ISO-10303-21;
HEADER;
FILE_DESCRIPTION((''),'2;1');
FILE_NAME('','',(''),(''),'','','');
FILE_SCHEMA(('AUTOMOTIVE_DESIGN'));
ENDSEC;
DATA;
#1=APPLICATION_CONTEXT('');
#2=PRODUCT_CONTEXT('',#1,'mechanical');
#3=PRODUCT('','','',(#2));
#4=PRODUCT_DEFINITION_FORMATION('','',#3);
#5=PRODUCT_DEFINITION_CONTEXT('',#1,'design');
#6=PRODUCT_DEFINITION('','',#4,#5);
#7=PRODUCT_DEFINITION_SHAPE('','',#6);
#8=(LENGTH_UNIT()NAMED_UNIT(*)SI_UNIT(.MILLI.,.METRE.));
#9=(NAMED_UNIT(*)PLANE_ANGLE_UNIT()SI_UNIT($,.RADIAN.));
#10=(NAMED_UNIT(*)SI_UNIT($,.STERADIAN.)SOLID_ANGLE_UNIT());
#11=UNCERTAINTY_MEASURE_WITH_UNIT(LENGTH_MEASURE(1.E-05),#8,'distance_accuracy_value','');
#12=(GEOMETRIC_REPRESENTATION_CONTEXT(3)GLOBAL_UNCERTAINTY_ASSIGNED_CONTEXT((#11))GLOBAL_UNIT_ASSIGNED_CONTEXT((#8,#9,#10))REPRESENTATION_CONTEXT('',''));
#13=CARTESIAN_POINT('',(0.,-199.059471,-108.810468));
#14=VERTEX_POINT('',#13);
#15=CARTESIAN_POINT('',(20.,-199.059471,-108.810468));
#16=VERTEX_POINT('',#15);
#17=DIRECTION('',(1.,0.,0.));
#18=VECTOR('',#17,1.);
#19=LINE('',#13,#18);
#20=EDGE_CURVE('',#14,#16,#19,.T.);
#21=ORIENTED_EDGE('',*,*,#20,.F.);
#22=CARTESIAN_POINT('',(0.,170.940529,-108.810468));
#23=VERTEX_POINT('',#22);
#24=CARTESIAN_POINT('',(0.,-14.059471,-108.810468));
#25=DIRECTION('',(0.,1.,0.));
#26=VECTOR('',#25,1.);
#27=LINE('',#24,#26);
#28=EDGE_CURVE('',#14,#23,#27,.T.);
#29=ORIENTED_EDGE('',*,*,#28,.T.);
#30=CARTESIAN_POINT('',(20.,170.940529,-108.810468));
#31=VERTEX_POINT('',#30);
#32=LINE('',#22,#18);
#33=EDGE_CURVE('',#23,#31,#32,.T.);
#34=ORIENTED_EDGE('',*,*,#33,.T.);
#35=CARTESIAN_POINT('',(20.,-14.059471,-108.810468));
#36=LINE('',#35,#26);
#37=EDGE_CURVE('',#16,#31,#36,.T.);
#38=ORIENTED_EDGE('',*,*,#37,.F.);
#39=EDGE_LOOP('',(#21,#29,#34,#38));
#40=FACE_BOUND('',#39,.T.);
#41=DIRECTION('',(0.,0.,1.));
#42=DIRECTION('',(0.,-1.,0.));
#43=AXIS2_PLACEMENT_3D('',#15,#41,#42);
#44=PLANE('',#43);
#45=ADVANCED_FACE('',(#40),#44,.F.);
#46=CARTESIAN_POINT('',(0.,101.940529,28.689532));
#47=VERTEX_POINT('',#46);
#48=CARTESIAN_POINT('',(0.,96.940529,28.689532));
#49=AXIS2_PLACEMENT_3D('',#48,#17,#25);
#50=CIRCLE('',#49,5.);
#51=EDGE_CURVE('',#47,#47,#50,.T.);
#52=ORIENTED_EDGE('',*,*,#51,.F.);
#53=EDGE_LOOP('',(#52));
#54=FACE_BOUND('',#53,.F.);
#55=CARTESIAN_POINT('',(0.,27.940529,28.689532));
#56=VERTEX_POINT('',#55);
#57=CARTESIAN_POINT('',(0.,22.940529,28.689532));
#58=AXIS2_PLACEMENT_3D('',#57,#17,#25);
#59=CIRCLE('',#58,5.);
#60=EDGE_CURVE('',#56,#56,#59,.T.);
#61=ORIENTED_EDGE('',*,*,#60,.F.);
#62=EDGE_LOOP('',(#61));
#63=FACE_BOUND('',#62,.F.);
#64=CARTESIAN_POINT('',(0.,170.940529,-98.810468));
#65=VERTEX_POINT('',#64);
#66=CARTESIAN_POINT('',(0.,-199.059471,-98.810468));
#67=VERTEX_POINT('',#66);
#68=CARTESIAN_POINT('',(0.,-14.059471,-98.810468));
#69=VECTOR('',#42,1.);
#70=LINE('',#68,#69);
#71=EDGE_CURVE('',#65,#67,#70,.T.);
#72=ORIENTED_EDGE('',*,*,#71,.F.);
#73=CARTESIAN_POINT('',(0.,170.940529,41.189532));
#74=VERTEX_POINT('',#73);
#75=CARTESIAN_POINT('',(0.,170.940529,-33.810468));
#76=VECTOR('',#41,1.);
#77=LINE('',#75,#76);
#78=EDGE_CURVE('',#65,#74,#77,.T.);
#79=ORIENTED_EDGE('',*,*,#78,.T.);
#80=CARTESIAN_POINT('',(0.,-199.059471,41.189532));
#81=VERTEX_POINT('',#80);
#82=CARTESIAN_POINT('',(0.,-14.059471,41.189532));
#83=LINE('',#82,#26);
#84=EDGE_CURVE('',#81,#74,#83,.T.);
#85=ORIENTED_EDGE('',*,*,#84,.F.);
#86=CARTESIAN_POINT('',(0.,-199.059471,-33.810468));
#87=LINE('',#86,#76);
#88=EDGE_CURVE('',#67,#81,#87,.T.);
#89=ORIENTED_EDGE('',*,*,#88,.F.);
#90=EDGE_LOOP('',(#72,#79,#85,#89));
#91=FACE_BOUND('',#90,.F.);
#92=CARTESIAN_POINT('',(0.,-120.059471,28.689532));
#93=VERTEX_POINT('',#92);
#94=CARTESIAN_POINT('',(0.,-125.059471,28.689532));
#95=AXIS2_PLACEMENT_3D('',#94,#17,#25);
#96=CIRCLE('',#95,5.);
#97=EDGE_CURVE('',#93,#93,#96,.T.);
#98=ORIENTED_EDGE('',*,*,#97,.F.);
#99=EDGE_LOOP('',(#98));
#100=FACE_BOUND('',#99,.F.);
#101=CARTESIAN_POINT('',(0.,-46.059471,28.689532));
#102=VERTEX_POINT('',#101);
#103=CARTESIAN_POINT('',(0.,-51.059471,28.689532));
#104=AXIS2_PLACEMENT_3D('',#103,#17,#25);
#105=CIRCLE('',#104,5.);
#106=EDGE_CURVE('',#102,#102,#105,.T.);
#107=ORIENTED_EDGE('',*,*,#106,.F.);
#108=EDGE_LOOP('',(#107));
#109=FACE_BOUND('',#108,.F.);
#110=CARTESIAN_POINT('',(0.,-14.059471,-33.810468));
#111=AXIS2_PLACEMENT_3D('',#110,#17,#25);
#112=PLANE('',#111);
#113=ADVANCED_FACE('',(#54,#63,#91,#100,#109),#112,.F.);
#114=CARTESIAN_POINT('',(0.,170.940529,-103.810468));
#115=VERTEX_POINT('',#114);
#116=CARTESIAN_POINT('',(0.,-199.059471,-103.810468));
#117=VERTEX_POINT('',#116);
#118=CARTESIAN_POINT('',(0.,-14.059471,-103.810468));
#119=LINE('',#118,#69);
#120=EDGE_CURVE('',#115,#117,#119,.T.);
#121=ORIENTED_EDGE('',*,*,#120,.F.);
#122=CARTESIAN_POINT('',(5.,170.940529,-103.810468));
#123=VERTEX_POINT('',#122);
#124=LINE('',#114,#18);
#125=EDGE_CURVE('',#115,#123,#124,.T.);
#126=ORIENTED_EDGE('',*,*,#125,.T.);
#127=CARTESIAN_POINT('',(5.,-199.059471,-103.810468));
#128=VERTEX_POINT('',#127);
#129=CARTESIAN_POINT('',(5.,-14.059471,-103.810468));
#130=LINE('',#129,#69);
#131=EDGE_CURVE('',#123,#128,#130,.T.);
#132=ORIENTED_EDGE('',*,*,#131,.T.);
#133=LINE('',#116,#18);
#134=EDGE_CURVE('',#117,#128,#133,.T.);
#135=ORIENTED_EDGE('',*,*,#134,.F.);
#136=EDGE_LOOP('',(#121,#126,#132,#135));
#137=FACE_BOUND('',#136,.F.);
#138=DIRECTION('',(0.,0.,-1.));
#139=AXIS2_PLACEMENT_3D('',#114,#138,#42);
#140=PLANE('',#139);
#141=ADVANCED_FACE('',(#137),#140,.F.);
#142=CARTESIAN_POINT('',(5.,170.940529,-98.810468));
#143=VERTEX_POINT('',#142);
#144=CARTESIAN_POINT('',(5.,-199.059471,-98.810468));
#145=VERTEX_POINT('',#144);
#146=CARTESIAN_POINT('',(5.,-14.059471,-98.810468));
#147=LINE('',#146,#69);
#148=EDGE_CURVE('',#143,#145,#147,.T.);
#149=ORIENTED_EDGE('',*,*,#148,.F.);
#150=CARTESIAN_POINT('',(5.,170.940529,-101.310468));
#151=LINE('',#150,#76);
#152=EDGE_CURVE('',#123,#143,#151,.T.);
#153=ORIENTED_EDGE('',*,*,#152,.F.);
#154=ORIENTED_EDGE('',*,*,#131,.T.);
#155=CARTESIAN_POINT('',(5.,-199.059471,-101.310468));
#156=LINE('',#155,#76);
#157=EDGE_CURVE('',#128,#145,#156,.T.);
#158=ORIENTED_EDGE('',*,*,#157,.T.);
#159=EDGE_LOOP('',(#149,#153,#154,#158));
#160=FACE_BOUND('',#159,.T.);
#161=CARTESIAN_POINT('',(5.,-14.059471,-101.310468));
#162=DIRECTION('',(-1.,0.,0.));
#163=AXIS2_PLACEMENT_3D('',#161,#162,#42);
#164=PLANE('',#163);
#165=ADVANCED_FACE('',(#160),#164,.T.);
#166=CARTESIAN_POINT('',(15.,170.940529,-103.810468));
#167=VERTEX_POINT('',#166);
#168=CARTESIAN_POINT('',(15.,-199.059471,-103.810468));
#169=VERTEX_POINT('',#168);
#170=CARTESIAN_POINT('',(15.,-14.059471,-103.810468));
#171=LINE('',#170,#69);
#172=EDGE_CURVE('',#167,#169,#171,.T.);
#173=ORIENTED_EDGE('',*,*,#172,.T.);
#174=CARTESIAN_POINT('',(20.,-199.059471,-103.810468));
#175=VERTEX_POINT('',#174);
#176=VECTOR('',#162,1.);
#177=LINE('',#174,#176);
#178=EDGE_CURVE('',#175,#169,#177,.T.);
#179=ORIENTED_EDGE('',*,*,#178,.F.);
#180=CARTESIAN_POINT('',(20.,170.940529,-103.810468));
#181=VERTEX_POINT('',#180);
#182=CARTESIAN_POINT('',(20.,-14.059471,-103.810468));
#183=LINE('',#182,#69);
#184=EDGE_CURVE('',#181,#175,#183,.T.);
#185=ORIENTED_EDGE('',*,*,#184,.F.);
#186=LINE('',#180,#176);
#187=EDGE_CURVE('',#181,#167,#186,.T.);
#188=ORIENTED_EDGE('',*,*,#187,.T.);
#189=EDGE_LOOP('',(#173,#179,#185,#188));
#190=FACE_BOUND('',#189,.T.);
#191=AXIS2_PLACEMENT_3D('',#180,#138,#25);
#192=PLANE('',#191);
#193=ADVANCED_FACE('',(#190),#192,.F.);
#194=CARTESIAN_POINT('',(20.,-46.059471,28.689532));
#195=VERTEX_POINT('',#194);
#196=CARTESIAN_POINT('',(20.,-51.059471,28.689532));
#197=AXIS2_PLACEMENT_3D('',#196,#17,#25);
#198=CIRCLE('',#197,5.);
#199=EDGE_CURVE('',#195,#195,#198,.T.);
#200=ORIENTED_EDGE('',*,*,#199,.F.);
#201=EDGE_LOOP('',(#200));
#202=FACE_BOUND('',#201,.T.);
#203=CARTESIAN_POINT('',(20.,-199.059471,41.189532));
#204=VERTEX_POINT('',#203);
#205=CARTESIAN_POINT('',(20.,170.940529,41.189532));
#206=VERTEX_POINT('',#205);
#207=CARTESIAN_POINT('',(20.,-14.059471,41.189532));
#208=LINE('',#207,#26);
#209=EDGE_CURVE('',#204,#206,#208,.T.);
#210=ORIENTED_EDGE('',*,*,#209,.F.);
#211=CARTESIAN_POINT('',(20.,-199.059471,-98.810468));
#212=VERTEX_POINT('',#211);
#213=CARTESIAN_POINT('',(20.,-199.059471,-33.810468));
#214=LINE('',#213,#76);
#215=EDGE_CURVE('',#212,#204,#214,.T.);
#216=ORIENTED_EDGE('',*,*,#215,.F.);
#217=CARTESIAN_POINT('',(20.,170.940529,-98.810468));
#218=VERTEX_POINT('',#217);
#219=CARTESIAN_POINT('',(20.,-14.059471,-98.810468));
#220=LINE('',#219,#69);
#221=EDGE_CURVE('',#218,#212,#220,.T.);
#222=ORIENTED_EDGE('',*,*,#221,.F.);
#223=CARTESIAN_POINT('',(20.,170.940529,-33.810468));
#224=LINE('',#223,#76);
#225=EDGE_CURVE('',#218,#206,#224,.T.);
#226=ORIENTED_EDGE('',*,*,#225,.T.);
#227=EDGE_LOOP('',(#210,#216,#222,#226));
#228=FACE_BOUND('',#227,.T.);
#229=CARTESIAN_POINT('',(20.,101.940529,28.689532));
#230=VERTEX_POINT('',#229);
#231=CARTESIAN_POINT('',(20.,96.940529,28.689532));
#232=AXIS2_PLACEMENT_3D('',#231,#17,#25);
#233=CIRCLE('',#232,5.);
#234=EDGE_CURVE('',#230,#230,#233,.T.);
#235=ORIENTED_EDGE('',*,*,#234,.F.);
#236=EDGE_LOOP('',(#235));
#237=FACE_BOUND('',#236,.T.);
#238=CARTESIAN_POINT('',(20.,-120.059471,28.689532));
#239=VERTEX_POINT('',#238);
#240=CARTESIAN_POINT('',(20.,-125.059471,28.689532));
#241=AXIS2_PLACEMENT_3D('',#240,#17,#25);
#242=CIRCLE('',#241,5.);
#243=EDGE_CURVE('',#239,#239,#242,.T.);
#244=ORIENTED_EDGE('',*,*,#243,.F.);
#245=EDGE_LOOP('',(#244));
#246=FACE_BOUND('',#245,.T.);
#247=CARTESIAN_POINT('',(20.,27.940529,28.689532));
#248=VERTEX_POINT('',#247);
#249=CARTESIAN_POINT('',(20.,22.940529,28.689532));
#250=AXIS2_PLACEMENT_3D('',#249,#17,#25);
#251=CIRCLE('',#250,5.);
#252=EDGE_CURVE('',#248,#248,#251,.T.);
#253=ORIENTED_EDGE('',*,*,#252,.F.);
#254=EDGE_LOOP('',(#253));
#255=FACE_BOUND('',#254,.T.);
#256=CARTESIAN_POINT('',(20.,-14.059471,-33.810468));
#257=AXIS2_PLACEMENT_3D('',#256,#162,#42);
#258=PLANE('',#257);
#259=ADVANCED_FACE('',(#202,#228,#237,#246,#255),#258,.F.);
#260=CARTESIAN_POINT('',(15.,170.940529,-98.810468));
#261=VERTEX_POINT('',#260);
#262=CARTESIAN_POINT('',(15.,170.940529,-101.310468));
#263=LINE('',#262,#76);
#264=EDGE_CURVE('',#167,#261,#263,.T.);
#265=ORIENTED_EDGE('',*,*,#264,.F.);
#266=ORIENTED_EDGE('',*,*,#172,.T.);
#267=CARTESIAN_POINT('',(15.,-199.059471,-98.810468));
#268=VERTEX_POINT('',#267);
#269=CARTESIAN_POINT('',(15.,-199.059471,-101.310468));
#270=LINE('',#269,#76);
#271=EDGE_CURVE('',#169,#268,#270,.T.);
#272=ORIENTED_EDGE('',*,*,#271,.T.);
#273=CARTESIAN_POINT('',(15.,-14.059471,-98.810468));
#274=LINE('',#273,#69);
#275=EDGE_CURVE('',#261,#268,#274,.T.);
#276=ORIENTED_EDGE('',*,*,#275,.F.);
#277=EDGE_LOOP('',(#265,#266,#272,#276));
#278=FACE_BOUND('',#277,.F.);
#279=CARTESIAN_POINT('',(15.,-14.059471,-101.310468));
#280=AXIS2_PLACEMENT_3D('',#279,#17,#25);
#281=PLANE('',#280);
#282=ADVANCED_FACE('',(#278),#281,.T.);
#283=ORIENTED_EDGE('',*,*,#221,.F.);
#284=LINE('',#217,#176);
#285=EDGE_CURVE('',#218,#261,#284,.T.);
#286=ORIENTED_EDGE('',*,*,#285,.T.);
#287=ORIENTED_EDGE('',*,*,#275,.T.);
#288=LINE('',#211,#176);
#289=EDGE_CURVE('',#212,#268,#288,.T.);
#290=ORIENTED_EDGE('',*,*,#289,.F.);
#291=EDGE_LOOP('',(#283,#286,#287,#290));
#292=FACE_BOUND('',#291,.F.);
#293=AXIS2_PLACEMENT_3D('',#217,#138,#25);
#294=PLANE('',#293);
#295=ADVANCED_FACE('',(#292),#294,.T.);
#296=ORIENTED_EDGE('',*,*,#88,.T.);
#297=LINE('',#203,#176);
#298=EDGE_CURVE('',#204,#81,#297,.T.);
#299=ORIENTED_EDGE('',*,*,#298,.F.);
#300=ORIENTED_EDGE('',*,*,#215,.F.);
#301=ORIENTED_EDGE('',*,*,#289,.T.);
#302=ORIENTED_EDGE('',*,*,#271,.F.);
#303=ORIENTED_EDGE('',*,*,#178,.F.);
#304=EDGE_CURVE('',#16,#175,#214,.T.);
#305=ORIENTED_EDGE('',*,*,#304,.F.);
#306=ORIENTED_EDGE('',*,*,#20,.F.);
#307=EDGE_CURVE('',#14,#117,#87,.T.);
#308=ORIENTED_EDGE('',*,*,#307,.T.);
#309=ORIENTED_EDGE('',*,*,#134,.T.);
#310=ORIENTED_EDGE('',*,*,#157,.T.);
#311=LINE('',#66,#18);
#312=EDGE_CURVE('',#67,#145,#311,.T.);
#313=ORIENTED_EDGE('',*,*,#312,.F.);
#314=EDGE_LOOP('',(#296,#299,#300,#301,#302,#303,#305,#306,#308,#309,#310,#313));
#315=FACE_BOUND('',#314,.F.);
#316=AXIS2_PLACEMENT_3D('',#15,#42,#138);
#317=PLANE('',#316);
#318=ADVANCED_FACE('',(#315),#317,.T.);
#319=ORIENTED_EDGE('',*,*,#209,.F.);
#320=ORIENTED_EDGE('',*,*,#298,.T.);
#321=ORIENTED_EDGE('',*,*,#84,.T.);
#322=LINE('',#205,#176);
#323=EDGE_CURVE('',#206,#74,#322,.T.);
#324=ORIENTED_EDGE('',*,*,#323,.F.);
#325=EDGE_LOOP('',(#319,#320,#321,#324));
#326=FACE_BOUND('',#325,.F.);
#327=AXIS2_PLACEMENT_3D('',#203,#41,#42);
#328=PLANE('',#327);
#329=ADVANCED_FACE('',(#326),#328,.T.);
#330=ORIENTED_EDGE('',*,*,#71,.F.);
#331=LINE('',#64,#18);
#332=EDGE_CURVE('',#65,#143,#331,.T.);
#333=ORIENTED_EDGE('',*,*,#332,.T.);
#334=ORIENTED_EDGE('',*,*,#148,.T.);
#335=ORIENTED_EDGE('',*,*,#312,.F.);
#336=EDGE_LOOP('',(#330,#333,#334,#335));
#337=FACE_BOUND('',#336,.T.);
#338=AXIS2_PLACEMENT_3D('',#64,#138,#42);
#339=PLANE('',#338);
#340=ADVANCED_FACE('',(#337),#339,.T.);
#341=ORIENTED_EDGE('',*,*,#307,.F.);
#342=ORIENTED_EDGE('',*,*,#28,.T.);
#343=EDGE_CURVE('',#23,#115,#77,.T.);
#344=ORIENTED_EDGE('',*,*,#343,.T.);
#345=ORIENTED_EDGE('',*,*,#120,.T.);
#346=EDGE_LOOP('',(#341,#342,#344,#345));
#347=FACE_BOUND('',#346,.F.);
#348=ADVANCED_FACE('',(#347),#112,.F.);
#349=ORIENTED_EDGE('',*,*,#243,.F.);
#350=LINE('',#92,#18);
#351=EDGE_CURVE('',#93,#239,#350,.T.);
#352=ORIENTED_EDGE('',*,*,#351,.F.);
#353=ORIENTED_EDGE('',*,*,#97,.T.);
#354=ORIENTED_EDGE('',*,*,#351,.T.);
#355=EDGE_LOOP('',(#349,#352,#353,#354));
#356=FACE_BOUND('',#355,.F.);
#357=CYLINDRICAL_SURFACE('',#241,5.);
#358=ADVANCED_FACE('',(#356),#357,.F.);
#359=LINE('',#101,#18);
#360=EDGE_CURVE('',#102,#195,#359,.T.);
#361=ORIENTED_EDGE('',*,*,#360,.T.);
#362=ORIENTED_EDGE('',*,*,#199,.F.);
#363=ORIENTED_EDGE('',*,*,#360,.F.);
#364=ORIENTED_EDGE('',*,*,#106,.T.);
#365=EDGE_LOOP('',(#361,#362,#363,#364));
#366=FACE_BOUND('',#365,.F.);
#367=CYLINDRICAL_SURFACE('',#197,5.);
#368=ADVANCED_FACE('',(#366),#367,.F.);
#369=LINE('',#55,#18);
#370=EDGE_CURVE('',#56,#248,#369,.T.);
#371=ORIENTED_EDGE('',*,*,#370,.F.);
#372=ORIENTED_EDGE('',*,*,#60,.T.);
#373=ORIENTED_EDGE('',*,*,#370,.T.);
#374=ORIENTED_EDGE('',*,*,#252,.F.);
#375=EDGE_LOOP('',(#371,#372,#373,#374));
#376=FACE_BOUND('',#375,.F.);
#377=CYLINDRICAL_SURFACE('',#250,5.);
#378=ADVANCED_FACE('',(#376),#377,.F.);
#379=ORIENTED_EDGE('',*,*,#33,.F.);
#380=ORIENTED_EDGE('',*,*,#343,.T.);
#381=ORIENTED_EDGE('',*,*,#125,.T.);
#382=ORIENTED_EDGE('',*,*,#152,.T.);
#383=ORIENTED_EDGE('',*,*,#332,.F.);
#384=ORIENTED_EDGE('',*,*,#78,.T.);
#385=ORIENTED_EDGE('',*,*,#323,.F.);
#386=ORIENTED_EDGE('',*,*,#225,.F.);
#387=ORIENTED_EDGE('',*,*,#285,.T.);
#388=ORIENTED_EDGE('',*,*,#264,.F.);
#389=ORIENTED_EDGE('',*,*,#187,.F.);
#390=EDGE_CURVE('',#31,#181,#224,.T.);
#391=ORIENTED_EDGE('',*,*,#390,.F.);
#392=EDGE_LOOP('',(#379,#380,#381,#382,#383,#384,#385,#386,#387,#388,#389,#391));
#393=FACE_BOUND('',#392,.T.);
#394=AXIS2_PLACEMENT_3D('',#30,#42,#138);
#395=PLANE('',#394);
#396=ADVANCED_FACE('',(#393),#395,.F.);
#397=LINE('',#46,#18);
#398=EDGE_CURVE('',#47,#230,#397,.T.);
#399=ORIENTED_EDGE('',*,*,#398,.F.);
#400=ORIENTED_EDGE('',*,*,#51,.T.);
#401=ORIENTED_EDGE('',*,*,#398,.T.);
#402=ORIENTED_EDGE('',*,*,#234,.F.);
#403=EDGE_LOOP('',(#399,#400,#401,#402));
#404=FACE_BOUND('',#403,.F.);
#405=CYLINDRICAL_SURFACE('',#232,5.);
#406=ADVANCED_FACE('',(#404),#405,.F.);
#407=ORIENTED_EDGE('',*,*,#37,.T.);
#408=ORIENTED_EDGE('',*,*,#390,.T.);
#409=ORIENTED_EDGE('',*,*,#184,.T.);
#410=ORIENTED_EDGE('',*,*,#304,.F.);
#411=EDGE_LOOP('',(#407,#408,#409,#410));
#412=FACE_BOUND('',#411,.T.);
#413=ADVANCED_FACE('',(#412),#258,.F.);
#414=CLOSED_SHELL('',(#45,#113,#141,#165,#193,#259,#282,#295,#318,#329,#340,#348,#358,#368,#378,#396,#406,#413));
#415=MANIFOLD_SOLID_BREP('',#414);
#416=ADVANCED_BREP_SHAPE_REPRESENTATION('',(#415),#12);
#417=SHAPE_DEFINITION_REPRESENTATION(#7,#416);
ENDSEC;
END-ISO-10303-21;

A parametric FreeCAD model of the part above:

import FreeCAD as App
import Part
import Sketcher


def add_polygon(sketch, points):
    """Adds a closed chain of lines whose ends are joined by coincident constraints."""
    first, n = sketch.GeometryCount, len(points)
    for a, b in zip(points, points[1:] + points[:1]):
        sketch.addGeometry(Part.LineSegment(App.Vector(*a, 0), App.Vector(*b, 0)), False)
    for i in range(n):
        sketch.addConstraint(Sketcher.Constraint("Coincident", first + i, 2, first + (i + 1) % n, 1))

doc = App.newDocument("Part")
body = doc.addObject("PartDesign::Body", "Body")

sketch1 = doc.addObject("Sketcher::SketchObject", "Sketch")
body.addObject(sketch1)
sketch1.AttachmentSupport = (doc.YZ_Plane, [""])
sketch1.MapMode = "FlatFace"
add_polygon(sketch1, [(-199, 41), (-199, -109), (171, -109), (171, 41)])
sketch1.addGeometry(Part.Circle(App.Vector(-125, 29, 0), App.Vector(0, 0, 1), 5), False)
sketch1.addGeometry(Part.Circle(App.Vector(-51, 29, 0), App.Vector(0, 0, 1), 5), False)
sketch1.addGeometry(Part.Circle(App.Vector(23, 29, 0), App.Vector(0, 0, 1), 5), False)
sketch1.addGeometry(Part.Circle(App.Vector(97, 29, 0), App.Vector(0, 0, 1), 5), False)
sketch1.addConstraint([
    Sketcher.Constraint("Vertical", 0),
    Sketcher.Constraint("Horizontal", 1),
    Sketcher.Constraint("Vertical", 2),
    Sketcher.Constraint("Horizontal", 3),
    Sketcher.Constraint("Equal", 4, 5),
    Sketcher.Constraint("Equal", 5, 6),
    Sketcher.Constraint("Equal", 6, 7),
    Sketcher.Constraint("Horizontal", 4, 3, 5, 3),
    Sketcher.Constraint("Horizontal", 5, 3, 6, 3),
    Sketcher.Constraint("Horizontal", 6, 3, 7, 3),
    Sketcher.Constraint("Diameter", 4, 10.0),
    Sketcher.Constraint("DistanceX", 1, 1, 1, 2, 370.0),
    Sketcher.Constraint("DistanceY", 0, 2, 0, 1, 150.0),
    Sketcher.Constraint("DistanceX", 4, 3, 5, 3, 74.0),
    Sketcher.Constraint("DistanceX", 5, 3, 6, 3, 74.0),
    Sketcher.Constraint("DistanceX", 6, 3, 7, 3, 74.0),
    Sketcher.Constraint("DistanceX", 0, 2, 4, 3, 74.0),
    Sketcher.Constraint("DistanceY", 0, 2, 4, 3, 137.5),
    Sketcher.Constraint("DistanceX", 4, 3, -1, 1, 125.059471),
    Sketcher.Constraint("DistanceY", -1, 1, 4, 3, 28.689532),
])
pad1 = doc.addObject("PartDesign::Pad", "Pad")
body.addObject(pad1)
pad1.Profile = sketch1
pad1.Length = 10

sketch2 = doc.addObject("Sketcher::SketchObject", "Sketch001")
body.addObject(sketch2)
sketch2.AttachmentSupport = (doc.YZ_Plane, [""])
sketch2.MapMode = "FlatFace"
add_polygon(sketch2, [(171, -99), (171, -104), (-199, -104), (-199, -99)])
sketch2.addConstraint([
    Sketcher.Constraint("Vertical", 0),
    Sketcher.Constraint("Horizontal", 1),
    Sketcher.Constraint("Vertical", 2),
    Sketcher.Constraint("Horizontal", 3),
    Sketcher.Constraint("DistanceX", 1, 2, 1, 1, 370.0),
    Sketcher.Constraint("DistanceY", 0, 2, 0, 1, 5.0),
    Sketcher.Constraint("DistanceX", -1, 1, 0, 2, 170.940529),
    Sketcher.Constraint("DistanceY", 0, 2, -1, 1, 103.810468),
])
pocket1 = doc.addObject("PartDesign::Pocket", "Pocket")
body.addObject(pocket1)
pocket1.Profile = sketch2
pocket1.Length = 5
pocket1.Reversed = True
body2 = doc.addObject("PartDesign::Body", "Body001")
doc.recompute()

body2.BaseFeature = body
doc.recompute()

mirroring = doc.addObject("Part::Mirroring", "Mirroring")
mirroring.Source = body
mirroring.Base = App.Vector(10, -14.059471, -34.166265)
mirroring.Normal = App.Vector(1, 0, 0)
body3 = doc.addObject("PartDesign::Body", "Body002")
body3.BaseFeature = mirroring
boolean = doc.addObject("PartDesign::Boolean", "Boolean")
body2.addObject(boolean)
boolean.Type = "Fuse"
boolean.addObjects([body3])
doc.recompute()
mirroring.Visibility = False

doc.recompute()
